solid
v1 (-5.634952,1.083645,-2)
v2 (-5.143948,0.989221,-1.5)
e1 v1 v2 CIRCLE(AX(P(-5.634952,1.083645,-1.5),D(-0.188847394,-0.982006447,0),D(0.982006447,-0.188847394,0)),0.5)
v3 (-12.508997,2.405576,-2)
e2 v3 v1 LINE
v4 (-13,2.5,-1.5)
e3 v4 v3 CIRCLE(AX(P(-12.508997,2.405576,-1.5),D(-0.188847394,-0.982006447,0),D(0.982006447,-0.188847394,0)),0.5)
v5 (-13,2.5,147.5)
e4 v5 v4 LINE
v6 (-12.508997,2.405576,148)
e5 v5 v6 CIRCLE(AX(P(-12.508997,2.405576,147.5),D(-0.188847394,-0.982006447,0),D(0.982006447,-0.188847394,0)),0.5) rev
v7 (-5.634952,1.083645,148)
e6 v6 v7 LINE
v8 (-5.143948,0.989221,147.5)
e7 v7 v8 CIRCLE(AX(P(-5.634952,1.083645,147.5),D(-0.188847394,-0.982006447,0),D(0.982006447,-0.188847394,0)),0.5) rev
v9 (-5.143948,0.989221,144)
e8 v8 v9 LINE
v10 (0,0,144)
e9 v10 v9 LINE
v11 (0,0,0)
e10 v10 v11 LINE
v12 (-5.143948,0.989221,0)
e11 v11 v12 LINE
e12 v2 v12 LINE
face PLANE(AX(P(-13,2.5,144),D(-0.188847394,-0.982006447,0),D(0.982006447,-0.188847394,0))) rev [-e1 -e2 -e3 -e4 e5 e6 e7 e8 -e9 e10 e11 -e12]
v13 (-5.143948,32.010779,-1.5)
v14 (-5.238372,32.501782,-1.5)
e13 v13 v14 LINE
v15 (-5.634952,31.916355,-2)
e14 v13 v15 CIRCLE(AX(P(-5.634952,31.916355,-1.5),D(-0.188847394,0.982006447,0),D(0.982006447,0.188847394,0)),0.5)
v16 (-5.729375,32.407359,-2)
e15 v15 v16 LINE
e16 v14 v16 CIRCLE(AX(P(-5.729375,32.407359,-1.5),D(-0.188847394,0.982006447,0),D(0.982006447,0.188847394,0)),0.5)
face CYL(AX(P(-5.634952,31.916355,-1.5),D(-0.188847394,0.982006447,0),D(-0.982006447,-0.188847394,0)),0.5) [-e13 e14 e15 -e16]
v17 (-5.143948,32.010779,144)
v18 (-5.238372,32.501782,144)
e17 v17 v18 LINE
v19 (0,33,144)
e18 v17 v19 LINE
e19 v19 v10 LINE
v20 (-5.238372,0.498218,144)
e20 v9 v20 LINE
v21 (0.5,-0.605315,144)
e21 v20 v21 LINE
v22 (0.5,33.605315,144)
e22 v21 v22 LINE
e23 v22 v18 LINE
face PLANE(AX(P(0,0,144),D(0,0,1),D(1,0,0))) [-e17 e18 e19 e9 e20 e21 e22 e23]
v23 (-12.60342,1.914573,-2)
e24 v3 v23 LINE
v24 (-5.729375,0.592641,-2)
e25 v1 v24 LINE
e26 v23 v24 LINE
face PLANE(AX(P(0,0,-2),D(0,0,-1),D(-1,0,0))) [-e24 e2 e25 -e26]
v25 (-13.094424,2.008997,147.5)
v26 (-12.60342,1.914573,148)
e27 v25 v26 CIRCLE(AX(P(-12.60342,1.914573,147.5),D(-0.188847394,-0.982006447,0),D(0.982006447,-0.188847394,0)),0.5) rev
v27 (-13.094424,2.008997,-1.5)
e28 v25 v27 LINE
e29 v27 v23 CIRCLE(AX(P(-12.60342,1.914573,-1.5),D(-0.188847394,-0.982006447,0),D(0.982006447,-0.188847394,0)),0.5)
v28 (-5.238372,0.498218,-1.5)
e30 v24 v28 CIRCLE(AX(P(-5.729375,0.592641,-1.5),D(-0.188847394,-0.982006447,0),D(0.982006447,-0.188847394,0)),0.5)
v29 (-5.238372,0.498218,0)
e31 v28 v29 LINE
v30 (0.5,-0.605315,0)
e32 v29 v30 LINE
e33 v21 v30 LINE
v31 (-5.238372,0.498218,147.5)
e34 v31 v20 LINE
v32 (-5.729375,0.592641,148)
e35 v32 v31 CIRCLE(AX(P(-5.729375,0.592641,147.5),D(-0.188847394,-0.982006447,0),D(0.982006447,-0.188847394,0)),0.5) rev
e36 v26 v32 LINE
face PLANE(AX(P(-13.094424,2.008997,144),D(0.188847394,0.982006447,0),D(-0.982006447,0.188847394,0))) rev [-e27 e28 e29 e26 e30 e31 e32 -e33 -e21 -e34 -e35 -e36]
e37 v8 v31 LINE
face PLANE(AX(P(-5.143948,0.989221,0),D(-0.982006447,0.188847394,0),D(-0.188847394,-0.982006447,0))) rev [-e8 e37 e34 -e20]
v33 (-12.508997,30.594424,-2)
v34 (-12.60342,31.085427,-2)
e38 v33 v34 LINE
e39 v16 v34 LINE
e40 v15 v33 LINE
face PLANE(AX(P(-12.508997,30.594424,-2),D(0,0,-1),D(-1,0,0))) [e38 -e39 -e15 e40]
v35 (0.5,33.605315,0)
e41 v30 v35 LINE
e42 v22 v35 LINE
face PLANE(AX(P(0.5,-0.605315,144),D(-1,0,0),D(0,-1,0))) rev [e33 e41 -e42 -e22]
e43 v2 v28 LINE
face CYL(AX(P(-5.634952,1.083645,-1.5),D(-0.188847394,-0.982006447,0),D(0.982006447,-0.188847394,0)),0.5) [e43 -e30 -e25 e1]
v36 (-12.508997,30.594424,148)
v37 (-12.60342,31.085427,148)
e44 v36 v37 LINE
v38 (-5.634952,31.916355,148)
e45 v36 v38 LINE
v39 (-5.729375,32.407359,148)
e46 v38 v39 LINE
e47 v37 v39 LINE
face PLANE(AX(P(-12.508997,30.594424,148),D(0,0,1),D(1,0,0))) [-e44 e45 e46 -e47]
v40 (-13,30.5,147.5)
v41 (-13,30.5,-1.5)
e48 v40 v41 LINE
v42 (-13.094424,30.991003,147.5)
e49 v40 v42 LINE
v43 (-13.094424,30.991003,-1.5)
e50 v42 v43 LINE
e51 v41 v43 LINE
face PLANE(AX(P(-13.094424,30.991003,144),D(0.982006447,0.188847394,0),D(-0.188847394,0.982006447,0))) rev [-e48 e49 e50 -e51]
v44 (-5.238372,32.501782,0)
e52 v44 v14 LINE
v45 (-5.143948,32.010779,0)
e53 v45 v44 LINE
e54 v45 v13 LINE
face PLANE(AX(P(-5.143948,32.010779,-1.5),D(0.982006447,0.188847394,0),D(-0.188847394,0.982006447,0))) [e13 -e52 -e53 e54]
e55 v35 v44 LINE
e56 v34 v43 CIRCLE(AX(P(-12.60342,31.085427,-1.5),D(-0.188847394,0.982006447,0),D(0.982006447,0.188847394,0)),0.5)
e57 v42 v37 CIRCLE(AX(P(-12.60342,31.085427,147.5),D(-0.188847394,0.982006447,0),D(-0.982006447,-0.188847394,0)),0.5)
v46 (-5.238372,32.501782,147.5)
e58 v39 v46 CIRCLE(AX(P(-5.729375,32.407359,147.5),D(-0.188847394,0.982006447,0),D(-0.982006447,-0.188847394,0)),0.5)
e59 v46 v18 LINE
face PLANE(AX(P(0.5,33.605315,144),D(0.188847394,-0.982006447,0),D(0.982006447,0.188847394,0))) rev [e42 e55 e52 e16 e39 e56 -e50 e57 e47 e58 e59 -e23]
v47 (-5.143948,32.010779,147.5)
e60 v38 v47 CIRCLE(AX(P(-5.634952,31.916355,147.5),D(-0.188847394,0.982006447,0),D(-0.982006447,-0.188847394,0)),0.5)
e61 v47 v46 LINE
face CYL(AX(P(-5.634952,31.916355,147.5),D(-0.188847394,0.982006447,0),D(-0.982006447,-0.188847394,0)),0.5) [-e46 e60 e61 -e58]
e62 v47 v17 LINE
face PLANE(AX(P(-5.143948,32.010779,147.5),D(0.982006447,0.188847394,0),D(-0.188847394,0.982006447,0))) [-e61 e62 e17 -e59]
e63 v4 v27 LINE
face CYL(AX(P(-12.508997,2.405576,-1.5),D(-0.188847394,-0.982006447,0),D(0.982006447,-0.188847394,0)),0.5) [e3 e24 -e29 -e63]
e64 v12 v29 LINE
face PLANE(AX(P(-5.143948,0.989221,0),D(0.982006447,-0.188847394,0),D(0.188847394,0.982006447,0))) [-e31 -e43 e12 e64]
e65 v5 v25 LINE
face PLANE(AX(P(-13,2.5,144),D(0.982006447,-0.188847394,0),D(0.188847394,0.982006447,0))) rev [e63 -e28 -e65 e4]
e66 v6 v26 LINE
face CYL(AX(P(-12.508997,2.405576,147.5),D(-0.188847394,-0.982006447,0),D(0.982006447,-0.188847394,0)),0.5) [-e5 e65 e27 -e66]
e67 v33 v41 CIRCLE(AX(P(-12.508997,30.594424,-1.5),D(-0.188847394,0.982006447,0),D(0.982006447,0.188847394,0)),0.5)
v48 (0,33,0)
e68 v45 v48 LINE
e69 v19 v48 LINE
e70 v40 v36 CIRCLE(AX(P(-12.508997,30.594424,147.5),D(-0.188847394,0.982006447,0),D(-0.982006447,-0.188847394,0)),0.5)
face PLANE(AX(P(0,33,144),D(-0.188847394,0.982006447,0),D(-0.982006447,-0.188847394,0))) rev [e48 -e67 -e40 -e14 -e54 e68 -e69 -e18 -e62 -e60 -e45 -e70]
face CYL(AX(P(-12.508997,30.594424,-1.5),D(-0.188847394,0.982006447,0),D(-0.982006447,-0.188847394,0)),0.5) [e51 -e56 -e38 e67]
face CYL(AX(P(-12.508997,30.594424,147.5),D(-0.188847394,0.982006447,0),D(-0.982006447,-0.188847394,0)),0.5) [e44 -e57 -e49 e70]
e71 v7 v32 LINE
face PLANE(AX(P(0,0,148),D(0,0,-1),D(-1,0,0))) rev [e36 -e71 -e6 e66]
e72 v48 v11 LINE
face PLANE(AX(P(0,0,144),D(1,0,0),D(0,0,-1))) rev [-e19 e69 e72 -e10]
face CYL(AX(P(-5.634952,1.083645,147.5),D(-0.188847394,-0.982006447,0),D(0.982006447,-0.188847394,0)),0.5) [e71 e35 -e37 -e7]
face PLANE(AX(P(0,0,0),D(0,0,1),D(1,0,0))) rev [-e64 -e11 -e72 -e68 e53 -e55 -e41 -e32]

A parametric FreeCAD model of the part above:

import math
import FreeCAD as App
import Part
import Sketcher
from FreeCAD import Vector

doc = App.newDocument("Part")
body = doc.addObject("PartDesign::Body", "Body")

# Sketch on XY plane
sketch1 = doc.addObject("Sketcher::SketchObject", "Sketch")
body.addObject(sketch1)
sketch1.AttachmentSupport = (doc.XY_Plane, [""])
sketch1.MapMode = "FlatFace"
sketch1.addGeometry([
    Part.LineSegment(Vector(0, 0, 0), Vector(-13, 2.5, 0)),  # 0
    Part.LineSegment(Vector(-13, 2.5, 0), Vector(-13.094424, 2.008997, 0)),  # 1
    Part.LineSegment(Vector(-13.094424, 2.008997, 0), Vector(0.5, -0.605315, 0)),  # 2
    Part.LineSegment(Vector(0.5, -0.605315, 0), Vector(0.5, 33.605315, 0)),  # 3
    Part.LineSegment(Vector(0.5, 33.605315, 0), Vector(-13.094424, 30.991003, 0)),  # 4
    Part.LineSegment(Vector(-13.094424, 30.991003, 0), Vector(-13, 30.5, 0)),  # 5
    Part.LineSegment(Vector(-13, 30.5, 0), Vector(0, 33, 0)),  # 6
    Part.LineSegment(Vector(0, 33, 0), Vector(0, 0, 0)),  # 7
], False)
sketch1.addConstraint([
    Sketcher.Constraint("Coincident", 0, 2, 1, 1),
    Sketcher.Constraint("Coincident", 1, 2, 2, 1),
    Sketcher.Constraint("Coincident", 2, 2, 3, 1),
    Sketcher.Constraint("Coincident", 3, 2, 4, 1),
    Sketcher.Constraint("Coincident", 4, 2, 5, 1),
    Sketcher.Constraint("Coincident", 5, 2, 6, 1),
    Sketcher.Constraint("Coincident", 6, 2, 7, 1),
    Sketcher.Constraint("Coincident", 7, 2, 0, 1),
    Sketcher.Constraint("Vertical", 3),
    Sketcher.Constraint("Vertical", 7),
    Sketcher.Constraint("Coincident", 7, 2, -1, 1),
    Sketcher.Constraint("Perpendicular", 0, 1),
    Sketcher.Constraint("Perpendicular", 1, 2),
    Sketcher.Constraint("Perpendicular", 4, 5),
    Sketcher.Constraint("Perpendicular", 5, 6),
    Sketcher.Constraint("Vertical", 1, 2, 4, 2),
    Sketcher.Constraint("Vertical", 0, 2, 5, 2),
    Sketcher.Constraint("Equal", 2, 4),
    Sketcher.Constraint("DistanceY", 7, 2, 7, 1, 33.0),
    Sketcher.Constraint("DistanceX", 0, 2, -1, 1, 13.0),
    Sketcher.Constraint("DistanceY", 0, 2, 5, 2, 28.0),
    Sketcher.Constraint("Distance", 1, 0.5),
    Sketcher.Constraint("DistanceX", -1, 1, 2, 2, 0.5),
])
pad1 = doc.addObject("PartDesign::Pad", "Pad")
body.addObject(pad1)
pad1.Profile = sketch1
pad1.Length = 144

# Sketch on an angled plane
sketch2 = doc.addObject("Sketcher::SketchObject", "Sketch001")
body.addObject(sketch2)
sketch2.Placement = App.Placement(Vector(-6.214253, 32.314113, 0), App.Rotation(Vector(0.982006447, 0.188847394, 0), Vector(0, 0, -1), Vector(-0.188847394, 0.982006447, 0), "ZXY"))
sketch2.addGeometry([
    Part.LineSegment(Vector(-7.006238, 1.5, 0), Vector(-7.006238, 0, 0)),  # 0
    Part.LineSegment(Vector(-7.006238, 0, 0), Vector(0.993762, 0, 0)),  # 1
    Part.LineSegment(Vector(0.993762, 0, 0), Vector(0.993762, 1.5, 0)),  # 2
    Part.ArcOfCircle(Part.Circle(Vector(0.493762, 1.5, 0), Vector(0, 0, 1), 0.5), math.radians(0), math.radians(90)),  # 3
    Part.LineSegment(Vector(0.493762, 2, 0), Vector(-6.506238, 2, 0)),  # 4
    Part.ArcOfCircle(Part.Circle(Vector(-6.506238, 1.5, 0), Vector(0, 0, 1), 0.5), math.radians(90), math.radians(180)),  # 5
    Part.LineSegment(Vector(-7.006238, -144, 0), Vector(-7.006238, -147.5, 0)),  # 6
    Part.ArcOfCircle(Part.Circle(Vector(-6.506238, -147.5, 0), Vector(0, 0, 1), 0.5), math.radians(180), math.radians(270)),  # 7
    Part.LineSegment(Vector(-6.506238, -148, 0), Vector(0.493762, -148, 0)),  # 8
    Part.ArcOfCircle(Part.Circle(Vector(0.493762, -147.5, 0), Vector(0, 0, 1), 0.5), math.radians(-90), math.radians(0)),  # 9
    Part.LineSegment(Vector(0.993762, -147.5, 0), Vector(0.993762, -144, 0)),  # 10
    Part.LineSegment(Vector(0.993762, -144, 0), Vector(-7.006238, -144, 0)),  # 11
], False)
sketch2.addConstraint([
    Sketcher.Constraint("Coincident", 0, 2, 1, 1),
    Sketcher.Constraint("Coincident", 1, 2, 2, 1),
    Sketcher.Constraint("Tangent", 2, 2, 3, 1),
    Sketcher.Constraint("Tangent", 3, 2, 4, 1),
    Sketcher.Constraint("Tangent", 4, 2, 5, 1),
    Sketcher.Constraint("Tangent", 5, 2, 0, 1),
    Sketcher.Constraint("Tangent", 6, 2, 7, 1),
    Sketcher.Constraint("Tangent", 7, 2, 8, 1),
    Sketcher.Constraint("Tangent", 8, 2, 9, 1),
    Sketcher.Constraint("Tangent", 9, 2, 10, 1),
    Sketcher.Constraint("Coincident", 10, 2, 11, 1),
    Sketcher.Constraint("Coincident", 11, 2, 6, 1),
    Sketcher.Constraint("Vertical", 0),
    Sketcher.Constraint("Horizontal", 1),
    Sketcher.Constraint("Vertical", 2),
    Sketcher.Constraint("Horizontal", 4),
    Sketcher.Constraint("Vertical", 6),
    Sketcher.Constraint("Horizontal", 8),
    Sketcher.Constraint("Vertical", 10),
    Sketcher.Constraint("Horizontal", 11),
    Sketcher.Constraint("Equal", 3, 5),
    Sketcher.Constraint("Equal", 5, 7),
    Sketcher.Constraint("Equal", 7, 9),
    Sketcher.Constraint("PointOnObject", 0, 2, -1),
    Sketcher.Constraint("Vertical", 5, 3, 7, 3),
    Sketcher.Constraint("Vertical", 3, 3, 9, 3),
    Sketcher.Constraint("Radius", 3, 0.5),
    Sketcher.Constraint("DistanceX", 1, 1, 1, 2, 8.0),
    Sketcher.Constraint("DistanceY", 0, 2, 0, 1, 1.5),
    Sketcher.Constraint("DistanceY", 6, 2, 6, 1, 3.5),
    Sketcher.Constraint("DistanceY", 7, 2, -1, 1, 148.0),
    Sketcher.Constraint("DistanceX", -1, 1, 3, 3, 0.493762),
])
pad2 = doc.addObject("PartDesign::Pad", "Pad001")
body.addObject(pad2)
pad2.Profile = sketch2
pad2.Length = 0.5
pad2.Reversed = True

# Sketch on an angled plane
sketch3 = doc.addObject("Sketcher::SketchObject", "Sketch002")
body.addObject(sketch3)
sketch3.Placement = App.Placement(Vector(-0.094424, -0.491003, 0), App.Rotation(Vector(0.982006447, -0.188847394, 0), Vector(0, 0, 1), Vector(-0.188847394, -0.982006447, 0), "ZXY"))
sketch3.addGeometry([
    Part.LineSegment(Vector(-13.238202, 147.5, 0), Vector(-13.238202, 144, 0)),  # 0
    Part.LineSegment(Vector(-13.238202, 144, 0), Vector(-5.238202, 144, 0)),  # 1
    Part.LineSegment(Vector(-5.238202, 144, 0), Vector(-5.238202, 147.5, 0)),  # 2
    Part.ArcOfCircle(Part.Circle(Vector(-5.738202, 147.5, 0), Vector(0, 0, 1), 0.5), math.radians(0), math.radians(90)),  # 3
    Part.LineSegment(Vector(-5.738202, 148, 0), Vector(-12.738202, 148, 0)),  # 4
    Part.ArcOfCircle(Part.Circle(Vector(-12.738202, 147.5, 0), Vector(0, 0, 1), 0.5), math.radians(90), math.radians(180)),  # 5
    Part.LineSegment(Vector(-5.238202, 0, 0), Vector(-13.238202, 0, 0)),  # 6
    Part.LineSegment(Vector(-13.238202, 0, 0), Vector(-13.238202, -1.5, 0)),  # 7
    Part.ArcOfCircle(Part.Circle(Vector(-12.738202, -1.5, 0), Vector(0, 0, 1), 0.5), math.radians(180), math.radians(270)),  # 8
    Part.LineSegment(Vector(-12.738202, -2, 0), Vector(-5.738202, -2, 0)),  # 9
    Part.ArcOfCircle(Part.Circle(Vector(-5.738202, -1.5, 0), Vector(0, 0, 1), 0.5), math.radians(-90), math.radians(0)),  # 10
    Part.LineSegment(Vector(-5.238202, -1.5, 0), Vector(-5.238202, 0, 0)),  # 11
], False)
sketch3.addConstraint([
    Sketcher.Constraint("Coincident", 0, 2, 1, 1),
    Sketcher.Constraint("Coincident", 1, 2, 2, 1),
    Sketcher.Constraint("Tangent", 2, 2, 3, 1),
    Sketcher.Constraint("Tangent", 3, 2, 4, 1),
    Sketcher.Constraint("Tangent", 4, 2, 5, 1),
    Sketcher.Constraint("Tangent", 5, 2, 0, 1),
    Sketcher.Constraint("Coincident", 6, 2, 7, 1),
    Sketcher.Constraint("Tangent", 7, 2, 8, 1),
    Sketcher.Constraint("Tangent", 8, 2, 9, 1),
    Sketcher.Constraint("Tangent", 9, 2, 10, 1),
    Sketcher.Constraint("Tangent", 10, 2, 11, 1),
    Sketcher.Constraint("Coincident", 11, 2, 6, 1),
    Sketcher.Constraint("Vertical", 0),
    Sketcher.Constraint("Horizontal", 1),
    Sketcher.Constraint("Vertical", 2),
    Sketcher.Constraint("Horizontal", 4),
    Sketcher.Constraint("Horizontal", 6),
    Sketcher.Constraint("Vertical", 7),
    Sketcher.Constraint("Horizontal", 9),
    Sketcher.Constraint("Vertical", 11),
    Sketcher.Constraint("Equal", 3, 5),
    Sketcher.Constraint("Equal", 5, 8),
    Sketcher.Constraint("Equal", 8, 10),
    Sketcher.Constraint("PointOnObject", 6, 2, -1),
    Sketcher.Constraint("Vertical", 5, 3, 8, 3),
    Sketcher.Constraint("Vertical", 3, 3, 10, 3),
    Sketcher.Constraint("Radius", 3, 0.5),
    Sketcher.Constraint("DistanceX", 1, 1, 1, 2, 8.0),
    Sketcher.Constraint("DistanceY", 0, 2, 0, 1, 3.5),
    Sketcher.Constraint("DistanceY", 7, 2, 7, 1, 1.5),
    Sketcher.Constraint("DistanceY", -1, 1, 0, 2, 144.0),
    Sketcher.Constraint("DistanceX", 3, 3, -1, 1, 5.738202),
])
pad3 = doc.addObject("PartDesign::Pad", "Pad002")
body.addObject(pad3)
pad3.Profile = sketch3
pad3.Length = 0.5
pad3.Reversed = True

doc.recompute()
